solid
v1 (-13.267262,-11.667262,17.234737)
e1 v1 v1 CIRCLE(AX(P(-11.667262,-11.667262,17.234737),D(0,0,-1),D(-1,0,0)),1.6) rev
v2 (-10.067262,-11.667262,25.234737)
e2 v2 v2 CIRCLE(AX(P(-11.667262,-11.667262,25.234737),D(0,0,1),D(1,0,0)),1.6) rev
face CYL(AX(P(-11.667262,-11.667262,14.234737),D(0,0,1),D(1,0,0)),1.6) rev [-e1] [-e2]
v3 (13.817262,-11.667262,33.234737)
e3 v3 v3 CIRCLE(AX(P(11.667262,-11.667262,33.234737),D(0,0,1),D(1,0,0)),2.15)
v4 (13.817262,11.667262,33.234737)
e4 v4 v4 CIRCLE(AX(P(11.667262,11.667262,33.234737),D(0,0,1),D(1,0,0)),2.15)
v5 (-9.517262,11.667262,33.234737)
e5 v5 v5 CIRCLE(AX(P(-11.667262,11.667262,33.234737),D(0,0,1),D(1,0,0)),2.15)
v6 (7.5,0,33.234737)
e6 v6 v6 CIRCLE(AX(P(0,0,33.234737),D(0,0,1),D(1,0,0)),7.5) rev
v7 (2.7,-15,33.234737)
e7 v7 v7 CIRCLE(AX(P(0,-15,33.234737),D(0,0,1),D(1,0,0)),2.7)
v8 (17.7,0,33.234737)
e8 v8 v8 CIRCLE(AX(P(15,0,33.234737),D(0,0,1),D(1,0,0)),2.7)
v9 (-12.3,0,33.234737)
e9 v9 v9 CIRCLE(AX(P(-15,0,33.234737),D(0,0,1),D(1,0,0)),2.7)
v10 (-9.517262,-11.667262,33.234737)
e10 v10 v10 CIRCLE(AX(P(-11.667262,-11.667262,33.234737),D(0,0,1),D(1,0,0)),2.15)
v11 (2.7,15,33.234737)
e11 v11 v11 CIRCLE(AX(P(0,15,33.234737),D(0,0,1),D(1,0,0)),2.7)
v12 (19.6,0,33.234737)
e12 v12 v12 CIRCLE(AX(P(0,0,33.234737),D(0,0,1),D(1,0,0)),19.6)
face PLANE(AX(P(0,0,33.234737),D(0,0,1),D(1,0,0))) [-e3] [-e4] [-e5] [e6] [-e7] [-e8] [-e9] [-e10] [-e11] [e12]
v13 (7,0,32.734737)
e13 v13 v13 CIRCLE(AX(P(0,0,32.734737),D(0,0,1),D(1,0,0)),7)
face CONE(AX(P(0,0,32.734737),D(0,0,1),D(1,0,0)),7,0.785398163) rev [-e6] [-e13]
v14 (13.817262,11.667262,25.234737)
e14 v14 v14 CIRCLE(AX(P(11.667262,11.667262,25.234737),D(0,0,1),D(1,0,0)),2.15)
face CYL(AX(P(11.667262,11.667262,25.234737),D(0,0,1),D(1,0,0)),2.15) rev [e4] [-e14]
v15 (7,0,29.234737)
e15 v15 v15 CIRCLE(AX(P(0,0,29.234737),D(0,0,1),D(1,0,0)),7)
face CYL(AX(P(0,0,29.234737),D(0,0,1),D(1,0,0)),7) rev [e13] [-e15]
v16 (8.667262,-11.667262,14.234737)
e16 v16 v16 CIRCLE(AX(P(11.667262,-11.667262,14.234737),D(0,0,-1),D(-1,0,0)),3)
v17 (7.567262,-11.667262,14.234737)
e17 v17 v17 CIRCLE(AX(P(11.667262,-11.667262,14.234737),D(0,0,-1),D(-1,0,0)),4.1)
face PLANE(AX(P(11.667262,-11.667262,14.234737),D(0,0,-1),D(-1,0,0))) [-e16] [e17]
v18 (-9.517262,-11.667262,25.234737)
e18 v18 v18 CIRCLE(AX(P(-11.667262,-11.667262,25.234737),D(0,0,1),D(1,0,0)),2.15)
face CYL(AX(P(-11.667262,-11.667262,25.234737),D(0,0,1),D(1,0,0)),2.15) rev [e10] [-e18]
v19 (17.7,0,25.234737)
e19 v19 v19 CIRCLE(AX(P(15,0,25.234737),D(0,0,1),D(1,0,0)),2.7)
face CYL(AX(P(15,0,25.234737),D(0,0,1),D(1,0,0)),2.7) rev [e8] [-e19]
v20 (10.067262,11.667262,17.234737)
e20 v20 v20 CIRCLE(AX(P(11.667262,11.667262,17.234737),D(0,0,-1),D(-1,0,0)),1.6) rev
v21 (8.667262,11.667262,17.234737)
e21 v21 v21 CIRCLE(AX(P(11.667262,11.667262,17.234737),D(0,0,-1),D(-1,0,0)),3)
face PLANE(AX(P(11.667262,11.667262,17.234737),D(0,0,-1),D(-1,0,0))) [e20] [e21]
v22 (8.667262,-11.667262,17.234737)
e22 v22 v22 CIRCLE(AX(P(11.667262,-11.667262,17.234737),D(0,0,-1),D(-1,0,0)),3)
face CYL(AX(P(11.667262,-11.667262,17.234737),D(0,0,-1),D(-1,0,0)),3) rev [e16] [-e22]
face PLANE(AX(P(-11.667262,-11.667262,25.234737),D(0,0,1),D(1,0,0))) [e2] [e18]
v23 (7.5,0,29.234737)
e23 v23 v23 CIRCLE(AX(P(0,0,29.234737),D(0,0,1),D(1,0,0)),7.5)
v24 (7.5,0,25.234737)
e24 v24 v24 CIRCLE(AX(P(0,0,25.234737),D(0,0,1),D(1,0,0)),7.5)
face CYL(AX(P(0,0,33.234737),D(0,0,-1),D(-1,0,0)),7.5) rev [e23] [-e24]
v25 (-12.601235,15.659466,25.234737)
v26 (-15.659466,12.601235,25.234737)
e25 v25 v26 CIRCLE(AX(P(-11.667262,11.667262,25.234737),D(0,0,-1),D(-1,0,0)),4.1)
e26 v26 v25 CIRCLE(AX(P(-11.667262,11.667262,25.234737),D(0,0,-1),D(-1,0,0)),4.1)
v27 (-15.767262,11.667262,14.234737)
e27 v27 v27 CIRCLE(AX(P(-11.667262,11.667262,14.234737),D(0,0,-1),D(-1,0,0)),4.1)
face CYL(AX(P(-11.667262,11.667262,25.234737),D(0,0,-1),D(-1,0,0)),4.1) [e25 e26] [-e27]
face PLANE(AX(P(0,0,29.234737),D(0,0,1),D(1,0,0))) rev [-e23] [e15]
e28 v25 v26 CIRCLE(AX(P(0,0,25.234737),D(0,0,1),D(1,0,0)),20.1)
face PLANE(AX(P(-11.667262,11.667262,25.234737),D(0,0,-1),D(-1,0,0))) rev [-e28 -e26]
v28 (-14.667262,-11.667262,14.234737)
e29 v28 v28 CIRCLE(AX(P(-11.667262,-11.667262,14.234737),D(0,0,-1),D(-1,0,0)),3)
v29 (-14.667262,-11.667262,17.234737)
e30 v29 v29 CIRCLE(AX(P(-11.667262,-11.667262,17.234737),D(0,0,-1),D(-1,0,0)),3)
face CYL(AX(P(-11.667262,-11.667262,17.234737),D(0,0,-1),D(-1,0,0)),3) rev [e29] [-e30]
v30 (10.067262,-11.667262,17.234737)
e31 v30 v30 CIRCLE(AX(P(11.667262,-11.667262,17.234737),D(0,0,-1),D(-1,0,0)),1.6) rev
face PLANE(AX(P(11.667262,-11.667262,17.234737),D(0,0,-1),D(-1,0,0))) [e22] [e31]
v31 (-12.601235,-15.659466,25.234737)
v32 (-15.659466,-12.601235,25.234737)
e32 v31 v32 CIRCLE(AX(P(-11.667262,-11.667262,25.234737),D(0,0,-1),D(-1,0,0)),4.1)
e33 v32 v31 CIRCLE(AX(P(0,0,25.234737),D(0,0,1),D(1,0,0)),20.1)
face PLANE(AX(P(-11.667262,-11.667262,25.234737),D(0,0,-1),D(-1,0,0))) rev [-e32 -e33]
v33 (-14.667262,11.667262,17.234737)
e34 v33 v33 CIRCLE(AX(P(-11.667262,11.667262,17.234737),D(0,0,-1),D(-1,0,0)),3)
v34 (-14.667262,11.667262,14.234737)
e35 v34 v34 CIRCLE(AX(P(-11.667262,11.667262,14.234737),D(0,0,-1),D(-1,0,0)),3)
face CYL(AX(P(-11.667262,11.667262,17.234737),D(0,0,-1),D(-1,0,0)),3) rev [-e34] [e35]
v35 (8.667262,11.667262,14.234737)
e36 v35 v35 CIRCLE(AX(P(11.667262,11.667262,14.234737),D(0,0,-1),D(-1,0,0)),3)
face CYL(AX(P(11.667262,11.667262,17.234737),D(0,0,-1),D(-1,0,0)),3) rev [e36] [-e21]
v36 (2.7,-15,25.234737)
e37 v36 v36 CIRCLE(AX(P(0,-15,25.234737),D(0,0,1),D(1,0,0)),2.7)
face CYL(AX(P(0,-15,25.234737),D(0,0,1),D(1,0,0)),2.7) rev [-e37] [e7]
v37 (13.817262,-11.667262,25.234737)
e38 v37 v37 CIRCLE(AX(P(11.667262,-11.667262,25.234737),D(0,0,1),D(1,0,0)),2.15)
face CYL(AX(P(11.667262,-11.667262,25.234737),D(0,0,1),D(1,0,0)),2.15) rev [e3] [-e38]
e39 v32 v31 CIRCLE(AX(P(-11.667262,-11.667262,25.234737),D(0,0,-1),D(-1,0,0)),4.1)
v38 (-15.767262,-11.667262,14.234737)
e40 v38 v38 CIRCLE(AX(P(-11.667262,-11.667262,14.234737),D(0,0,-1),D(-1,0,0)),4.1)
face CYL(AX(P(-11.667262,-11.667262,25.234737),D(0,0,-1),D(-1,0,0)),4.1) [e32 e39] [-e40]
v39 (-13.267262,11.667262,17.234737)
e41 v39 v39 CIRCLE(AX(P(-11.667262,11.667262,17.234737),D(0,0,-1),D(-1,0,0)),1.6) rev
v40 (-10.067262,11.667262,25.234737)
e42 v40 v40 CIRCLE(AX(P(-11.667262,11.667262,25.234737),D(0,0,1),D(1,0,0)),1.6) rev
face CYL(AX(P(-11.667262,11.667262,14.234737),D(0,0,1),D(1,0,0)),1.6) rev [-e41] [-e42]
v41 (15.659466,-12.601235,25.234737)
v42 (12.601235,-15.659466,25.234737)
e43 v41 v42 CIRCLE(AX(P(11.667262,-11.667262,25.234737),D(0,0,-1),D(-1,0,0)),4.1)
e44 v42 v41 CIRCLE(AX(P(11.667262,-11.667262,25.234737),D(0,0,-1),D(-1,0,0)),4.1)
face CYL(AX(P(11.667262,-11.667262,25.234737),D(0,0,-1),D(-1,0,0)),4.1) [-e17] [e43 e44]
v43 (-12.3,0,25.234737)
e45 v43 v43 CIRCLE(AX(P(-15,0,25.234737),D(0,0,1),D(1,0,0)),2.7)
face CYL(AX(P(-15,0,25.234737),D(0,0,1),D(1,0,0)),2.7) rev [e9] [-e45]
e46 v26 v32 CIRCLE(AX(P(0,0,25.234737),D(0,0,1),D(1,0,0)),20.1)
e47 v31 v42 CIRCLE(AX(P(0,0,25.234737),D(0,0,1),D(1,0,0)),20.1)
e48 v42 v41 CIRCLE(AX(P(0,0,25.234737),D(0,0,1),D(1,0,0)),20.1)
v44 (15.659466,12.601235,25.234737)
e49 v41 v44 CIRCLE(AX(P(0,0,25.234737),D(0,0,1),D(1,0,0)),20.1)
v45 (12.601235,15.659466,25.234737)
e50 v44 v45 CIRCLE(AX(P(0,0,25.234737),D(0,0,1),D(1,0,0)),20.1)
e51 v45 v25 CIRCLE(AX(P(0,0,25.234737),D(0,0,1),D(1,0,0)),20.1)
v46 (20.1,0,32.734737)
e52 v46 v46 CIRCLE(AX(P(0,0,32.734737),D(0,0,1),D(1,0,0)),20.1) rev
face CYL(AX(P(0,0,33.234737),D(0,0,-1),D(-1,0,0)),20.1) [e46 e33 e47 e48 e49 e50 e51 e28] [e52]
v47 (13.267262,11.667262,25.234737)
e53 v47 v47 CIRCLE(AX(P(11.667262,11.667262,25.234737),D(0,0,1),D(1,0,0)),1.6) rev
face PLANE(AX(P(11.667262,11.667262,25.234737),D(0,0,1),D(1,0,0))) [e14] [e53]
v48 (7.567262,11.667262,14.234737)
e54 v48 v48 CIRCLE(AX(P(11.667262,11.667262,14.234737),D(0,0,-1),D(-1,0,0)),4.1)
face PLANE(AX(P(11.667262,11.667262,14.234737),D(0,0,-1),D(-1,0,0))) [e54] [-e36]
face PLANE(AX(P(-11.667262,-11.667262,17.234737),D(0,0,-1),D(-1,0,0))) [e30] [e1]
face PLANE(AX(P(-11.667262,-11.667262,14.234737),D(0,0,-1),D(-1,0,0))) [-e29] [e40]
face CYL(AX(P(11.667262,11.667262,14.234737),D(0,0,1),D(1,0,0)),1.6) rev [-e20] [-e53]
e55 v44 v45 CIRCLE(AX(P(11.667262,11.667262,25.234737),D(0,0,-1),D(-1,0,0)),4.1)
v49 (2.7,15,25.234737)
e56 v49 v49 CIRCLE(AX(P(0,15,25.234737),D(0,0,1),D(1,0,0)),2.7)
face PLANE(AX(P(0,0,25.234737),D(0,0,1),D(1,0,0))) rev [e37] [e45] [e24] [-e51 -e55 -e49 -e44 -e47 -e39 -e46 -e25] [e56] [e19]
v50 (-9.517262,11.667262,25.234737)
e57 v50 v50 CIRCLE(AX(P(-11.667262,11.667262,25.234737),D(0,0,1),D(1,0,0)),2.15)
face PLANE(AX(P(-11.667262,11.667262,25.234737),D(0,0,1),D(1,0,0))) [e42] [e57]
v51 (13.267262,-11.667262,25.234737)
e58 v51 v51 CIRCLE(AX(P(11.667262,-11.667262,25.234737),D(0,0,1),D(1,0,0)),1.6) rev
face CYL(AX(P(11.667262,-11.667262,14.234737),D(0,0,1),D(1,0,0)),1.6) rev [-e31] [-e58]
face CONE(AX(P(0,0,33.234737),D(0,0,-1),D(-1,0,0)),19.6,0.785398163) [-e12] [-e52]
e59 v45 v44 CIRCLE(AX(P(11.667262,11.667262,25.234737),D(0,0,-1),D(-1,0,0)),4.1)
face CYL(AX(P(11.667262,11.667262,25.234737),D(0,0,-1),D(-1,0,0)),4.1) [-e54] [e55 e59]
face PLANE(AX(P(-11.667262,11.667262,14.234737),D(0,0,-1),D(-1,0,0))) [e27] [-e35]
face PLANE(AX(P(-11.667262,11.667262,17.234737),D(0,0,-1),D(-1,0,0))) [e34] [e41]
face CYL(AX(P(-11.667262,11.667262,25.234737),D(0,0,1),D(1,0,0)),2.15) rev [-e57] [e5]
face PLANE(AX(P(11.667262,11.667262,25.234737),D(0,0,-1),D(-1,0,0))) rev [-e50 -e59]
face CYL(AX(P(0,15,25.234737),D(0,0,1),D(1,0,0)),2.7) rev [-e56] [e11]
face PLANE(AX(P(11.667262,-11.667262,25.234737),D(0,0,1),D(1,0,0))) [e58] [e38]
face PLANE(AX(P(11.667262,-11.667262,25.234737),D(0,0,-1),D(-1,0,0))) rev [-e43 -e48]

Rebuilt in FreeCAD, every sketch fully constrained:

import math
import FreeCAD as App
import Part
import Sketcher
from FreeCAD import Vector
Q = App.Units.Quantity


def edges_at(feature, points):
    """Names of the edges that pass closest to the given points."""
    edges = feature.Shape.Edges
    near = lambda p: min(range(len(edges)), key=lambda i: edges[i].distToShape(Part.Vertex(*p))[0])
    return sorted({f"Edge{near(p) + 1}" for p in points})

doc = App.newDocument("Part")
body = doc.addObject("PartDesign::Body", "Body")

# Sketch on XY plane
sketch1 = body.newObject("Sketcher::SketchObject", "Sketch")
sketch1.AttachmentSupport = (doc.getObject("XY_Plane"), [""])
sketch1.MapMode = "FlatFace"
sketch1.AttachmentOffset = App.Placement(Vector(0, 0, 25.234737), App.Rotation())
sketch1.addGeometry(Part.Circle(Vector(11.7, 11.7, 0), Vector(0, 0, 1), 4), False)
sketch1.addConstraint(Sketcher.Constraint("Diameter", 0, Q("8 mm")))
sketch1.addConstraint(Sketcher.Constraint("DistanceX", -1, 1, 0, 3, Q("11.667262 mm")))
sketch1.addConstraint(Sketcher.Constraint("DistanceY", -1, 1, 0, 3, Q("11.667262 mm")))
pad1 = body.newObject("PartDesign::Pad", "Pad")
pad1.Profile = sketch1
pad1.Length = 11
pad1.Reversed = True
body2 = doc.addObject("PartDesign::Body", "Body001")

# Sketch on XY plane
sketch2 = body2.newObject("Sketcher::SketchObject", "Sketch001")
sketch2.AttachmentSupport = (doc.getObject("XY_Plane001"), [""])
sketch2.MapMode = "FlatFace"
sketch2.AttachmentOffset = App.Placement(Vector(0, 0, 25.234737), App.Rotation())
sketch2.addGeometry(Part.Circle(Vector(-11.7, 11.7, 0), Vector(0, 0, 1), 4), False)
sketch2.addConstraint(Sketcher.Constraint("Diameter", 0, Q("8 mm")))
sketch2.addConstraint(Sketcher.Constraint("DistanceX", 0, 3, -1, 1, Q("11.667262 mm")))
sketch2.addConstraint(Sketcher.Constraint("DistanceY", -1, 1, 0, 3, Q("11.667262 mm")))
pad2 = body2.newObject("PartDesign::Pad", "Pad001")
pad2.Profile = sketch2
pad2.Length = 11
pad2.Reversed = True
body3 = doc.addObject("PartDesign::Body", "Body002")

# Sketch on XY plane
sketch3 = body3.newObject("Sketcher::SketchObject", "Sketch002")
sketch3.AttachmentSupport = (doc.getObject("XY_Plane002"), [""])
sketch3.MapMode = "FlatFace"
sketch3.AttachmentOffset = App.Placement(Vector(0, 0, 25.234737), App.Rotation())
sketch3.addGeometry(Part.Circle(Vector(-11.7, -11.7, 0), Vector(0, 0, 1), 4), False)
sketch3.addConstraint(Sketcher.Constraint("Diameter", 0, Q("8 mm")))
sketch3.addConstraint(Sketcher.Constraint("DistanceX", 0, 3, -1, 1, Q("11.667262 mm")))
sketch3.addConstraint(Sketcher.Constraint("DistanceY", 0, 3, -1, 1, Q("11.667262 mm")))
pad3 = body3.newObject("PartDesign::Pad", "Pad002")
pad3.Profile = sketch3
pad3.Length = 11
pad3.Reversed = True
body4 = doc.addObject("PartDesign::Body", "Body003")

# Sketch on XY plane
sketch4 = body4.newObject("Sketcher::SketchObject", "Sketch003")
sketch4.AttachmentSupport = (doc.getObject("XY_Plane003"), [""])
sketch4.MapMode = "FlatFace"
sketch4.AttachmentOffset = App.Placement(Vector(0, 0, 25.234737), App.Rotation())
sketch4.addGeometry(Part.Circle(Vector(11.7, -11.7, 0), Vector(0, 0, 1), 4), False)
sketch4.addConstraint(Sketcher.Constraint("Diameter", 0, Q("8 mm")))
sketch4.addConstraint(Sketcher.Constraint("DistanceX", -1, 1, 0, 3, Q("11.667262 mm")))
sketch4.addConstraint(Sketcher.Constraint("DistanceY", 0, 3, -1, 1, Q("11.667262 mm")))
pad4 = body4.newObject("PartDesign::Pad", "Pad003")
pad4.Profile = sketch4
pad4.Length = 11
pad4.Reversed = True
body.AllowCompound = True
doc.recompute()

boolean = body.newObject("PartDesign::Boolean", "Boolean")
boolean.Type = "Fuse"
boolean.addObjects([body2])
doc.recompute()

boolean2 = body.newObject("PartDesign::Boolean", "Boolean001")
boolean2.Type = "Fuse"
boolean2.addObjects([body3])
doc.recompute()

boolean3 = body.newObject("PartDesign::Boolean", "Boolean002")
boolean3.Type = "Fuse"
boolean3.addObjects([body4])

# Sketch on XY plane
sketch5 = body.newObject("Sketcher::SketchObject", "Sketch004")
sketch5.AttachmentSupport = (doc.getObject("XY_Plane"), [""])
sketch5.MapMode = "FlatFace"
sketch5.AttachmentOffset = App.Placement(Vector(0, 0, 25.234737), App.Rotation())
sketch5.addGeometry(Part.ArcOfCircle(Part.Circle(Vector(0, 0, 0), Vector(0, 0, 1), 20), math.radians(-32), math.radians(58)), False)
sketch5.addGeometry(Part.ArcOfCircle(Part.Circle(Vector(0, 0, 0), Vector(0, 0, 1), 20), math.radians(58), math.radians(148)), False)
sketch5.addGeometry(Part.ArcOfCircle(Part.Circle(Vector(0, 0, 0), Vector(0, 0, 1), 20), math.radians(148), math.radians(238)), False)
sketch5.addGeometry(Part.ArcOfCircle(Part.Circle(Vector(0, 0, 0), Vector(0, 0, 1), 20), math.radians(-122), math.radians(-32)), False)
sketch5.addGeometry(Part.Circle(Vector(0, 0, 0), Vector(0, 0, 1), 8), False)
sketch5.addConstraint(Sketcher.Constraint("Tangent", 0, 2, 1, 1))
sketch5.addConstraint(Sketcher.Constraint("Tangent", 1, 2, 2, 1))
sketch5.addConstraint(Sketcher.Constraint("Tangent", 2, 2, 3, 1))
sketch5.addConstraint(Sketcher.Constraint("Tangent", 3, 2, 0, 1))
sketch5.addConstraint(Sketcher.Constraint("Coincident", 0, 3, -1, 1))
sketch5.addConstraint(Sketcher.Constraint("Coincident", 4, 3, -1, 1))
sketch5.addConstraint(Sketcher.Constraint("Equal", 0, 1))
sketch5.addConstraint(Sketcher.Constraint("Diameter", 4, Q("15 mm")))
sketch5.addConstraint(Sketcher.Constraint("Radius", 0, Q("20.1 mm")))
sketch5.addConstraint(Sketcher.Constraint("DistanceX", -1, 1, 0, 2, Q("10.73573 mm")))
sketch5.addConstraint(Sketcher.Constraint("DistanceY", -1, 1, 1, 2, Q("10.73573 mm")))
sketch5.addConstraint(Sketcher.Constraint("DistanceX", 2, 2, -1, 1, Q("10.73573 mm")))
sketch5.addConstraint(Sketcher.Constraint("DistanceY", 3, 2, -1, 1, Q("10.73573 mm")))
pad5 = body.newObject("PartDesign::Pad", "Pad004")
pad5.Profile = sketch5
pad5.Length = 8

# Sketch on XY plane
sketch6 = body.newObject("Sketcher::SketchObject", "Sketch005")
sketch6.AttachmentSupport = (doc.getObject("XY_Plane"), [""])
sketch6.MapMode = "FlatFace"
sketch6.AttachmentOffset = App.Placement(Vector(0, 0, 33.234737), App.Rotation())
sketch6.addGeometry(Part.Circle(Vector(11.7, 11.7, 0), Vector(0, 0, 1), 1.6), False)
sketch6.addGeometry(Part.Circle(Vector(11.7, -11.7, 0), Vector(0, 0, 1), 1.6), False)
sketch6.addGeometry(Part.Circle(Vector(-11.7, -11.7, 0), Vector(0, 0, 1), 1.6), False)
sketch6.addGeometry(Part.Circle(Vector(-11.7, 11.7, 0), Vector(0, 0, 1), 1.6), False)
sketch6.addConstraint(Sketcher.Constraint("Equal", 0, 1))
sketch6.addConstraint(Sketcher.Constraint("Equal", 1, 2))
sketch6.addConstraint(Sketcher.Constraint("Equal", 2, 3))
sketch6.addConstraint(Sketcher.Constraint("Symmetric", 0, 3, 2, 3, -1, 1))
sketch6.addConstraint(Sketcher.Constraint("Symmetric", 1, 3, 3, 3, -1, 1))
sketch6.addConstraint(Sketcher.Constraint("Symmetric", 1, 3, 2, 3, -2))
sketch6.addConstraint(Sketcher.Constraint("Diameter", 0, Q("3.2 mm")))
sketch6.addConstraint(Sketcher.Constraint("DistanceX", -1, 1, 0, 3, Q("11.667262 mm")))
sketch6.addConstraint(Sketcher.Constraint("DistanceY", -1, 1, 0, 3, Q("11.667262 mm")))
pocket1 = body.newObject("PartDesign::Pocket", "Pocket")
pocket1.Profile = sketch6
pocket1.Type = "ThroughAll"

# Sketch on XY plane
sketch7 = body.newObject("Sketcher::SketchObject", "Sketch006")
sketch7.AttachmentSupport = (doc.getObject("XY_Plane"), [""])
sketch7.MapMode = "FlatFace"
sketch7.AttachmentOffset = App.Placement(Vector(0, 0, 14.234737), App.Rotation())
sketch7.addGeometry(Part.Circle(Vector(11.7, 11.7, 0), Vector(0, 0, 1), 3), False)
sketch7.addGeometry(Part.Circle(Vector(11.7, -11.7, 0), Vector(0, 0, 1), 3), False)
sketch7.addGeometry(Part.Circle(Vector(-11.7, -11.7, 0), Vector(0, 0, 1), 3), False)
sketch7.addGeometry(Part.Circle(Vector(-11.7, 11.7, 0), Vector(0, 0, 1), 3), False)
sketch7.addConstraint(Sketcher.Constraint("Equal", 0, 1))
sketch7.addConstraint(Sketcher.Constraint("Equal", 1, 2))
sketch7.addConstraint(Sketcher.Constraint("Equal", 2, 3))
sketch7.addConstraint(Sketcher.Constraint("Symmetric", 0, 3, 2, 3, -1, 1))
sketch7.addConstraint(Sketcher.Constraint("Symmetric", 1, 3, 3, 3, -1, 1))
sketch7.addConstraint(Sketcher.Constraint("Symmetric", 1, 3, 2, 3, -2))
sketch7.addConstraint(Sketcher.Constraint("Diameter", 0, Q("6 mm")))
sketch7.addConstraint(Sketcher.Constraint("DistanceX", -1, 1, 0, 3, Q("11.667262 mm")))
sketch7.addConstraint(Sketcher.Constraint("DistanceY", -1, 1, 0, 3, Q("11.667262 mm")))
pocket2 = body.newObject("PartDesign::Pocket", "Pocket001")
pocket2.Profile = sketch7
pocket2.Length = 3
pocket2.Reversed = True

# Sketch on XY plane
sketch8 = body.newObject("Sketcher::SketchObject", "Sketch007")
sketch8.AttachmentSupport = (doc.getObject("XY_Plane"), [""])
sketch8.MapMode = "FlatFace"
sketch8.AttachmentOffset = App.Placement(Vector(0, 0, 25.234737), App.Rotation())
sketch8.addGeometry(Part.Circle(Vector(-11.7, 11.7, 0), Vector(0, 0, 1), 4.1), False)
sketch8.addGeometry(Part.Circle(Vector(-11.7, 11.7, 0), Vector(0, 0, 1), 4), False)
sketch8.addGeometry(Part.Circle(Vector(-11.7, -11.7, 0), Vector(0, 0, 1), 4.1), False)
sketch8.addGeometry(Part.Circle(Vector(-11.7, -11.7, 0), Vector(0, 0, 1), 4), False)
sketch8.addGeometry(Part.Circle(Vector(11.7, -11.7, 0), Vector(0, 0, 1), 4.1), False)
sketch8.addGeometry(Part.Circle(Vector(11.7, -11.7, 0), Vector(0, 0, 1), 4), False)
sketch8.addGeometry(Part.Circle(Vector(11.7, 11.7, 0), Vector(0, 0, 1), 4.1), False)
sketch8.addGeometry(Part.Circle(Vector(11.7, 11.7, 0), Vector(0, 0, 1), 4), False)
sketch8.addConstraint(Sketcher.Constraint("Coincident", 1, 3, 0, 3))
sketch8.addConstraint(Sketcher.Constraint("Coincident", 3, 3, 2, 3))
sketch8.addConstraint(Sketcher.Constraint("Coincident", 5, 3, 4, 3))
sketch8.addConstraint(Sketcher.Constraint("Coincident", 7, 3, 6, 3))
sketch8.addConstraint(Sketcher.Constraint("Equal", 0, 2))
sketch8.addConstraint(Sketcher.Constraint("Equal", 1, 3))
sketch8.addConstraint(Sketcher.Constraint("Equal", 2, 4))
sketch8.addConstraint(Sketcher.Constraint("Equal", 3, 5))
sketch8.addConstraint(Sketcher.Constraint("Equal", 4, 6))
sketch8.addConstraint(Sketcher.Constraint("Equal", 5, 7))
sketch8.addConstraint(Sketcher.Constraint("Symmetric", 0, 3, 4, 3, -1, 1))
sketch8.addConstraint(Sketcher.Constraint("Symmetric", 2, 3, 6, 3, -1, 1))
sketch8.addConstraint(Sketcher.Constraint("Symmetric", 2, 3, 4, 3, -2))
sketch8.addConstraint(Sketcher.Constraint("Diameter", 1, Q("8 mm")))
sketch8.addConstraint(Sketcher.Constraint("Diameter", 0, Q("8.2 mm")))
sketch8.addConstraint(Sketcher.Constraint("DistanceX", 0, 3, -1, 1, Q("11.667262 mm")))
sketch8.addConstraint(Sketcher.Constraint("DistanceY", -1, 1, 0, 3, Q("11.667262 mm")))
pad6 = body.newObject("PartDesign::Pad", "Pad005")
pad6.Profile = sketch8
pad6.Length = 11
pad6.Reversed = True

# Sketch on XY plane
sketch9 = body.newObject("Sketcher::SketchObject", "Sketch008")
sketch9.AttachmentSupport = (doc.getObject("XY_Plane"), [""])
sketch9.MapMode = "FlatFace"
sketch9.AttachmentOffset = App.Placement(Vector(0, 0, 33.234737), App.Rotation())
sketch9.addGeometry(Part.Circle(Vector(0, 15, 0), Vector(0, 0, 1), 2.7), False)
sketch9.addGeometry(Part.Circle(Vector(15, 0, 0), Vector(0, 0, 1), 2.7), False)
sketch9.addGeometry(Part.Circle(Vector(0, -15, 0), Vector(0, 0, 1), 2.7), False)
sketch9.addGeometry(Part.Circle(Vector(-15, 0, 0), Vector(0, 0, 1), 2.7), False)
sketch9.addGeometry(Part.Circle(Vector(-11.7, 11.7, 0), Vector(0, 0, 1), 2.1), False)
sketch9.addGeometry(Part.Circle(Vector(11.7, 11.7, 0), Vector(0, 0, 1), 2.1), False)
sketch9.addGeometry(Part.Circle(Vector(11.7, -11.7, 0), Vector(0, 0, 1), 2.1), False)
sketch9.addGeometry(Part.Circle(Vector(-11.7, -11.7, 0), Vector(0, 0, 1), 2.1), False)
sketch9.addConstraint(Sketcher.Constraint("Equal", 0, 1))
sketch9.addConstraint(Sketcher.Constraint("Equal", 1, 2))
sketch9.addConstraint(Sketcher.Constraint("Equal", 2, 3))
sketch9.addConstraint(Sketcher.Constraint("Equal", 4, 5))
sketch9.addConstraint(Sketcher.Constraint("Equal", 5, 6))
sketch9.addConstraint(Sketcher.Constraint("Equal", 6, 7))
sketch9.addConstraint(Sketcher.Constraint("Symmetric", 0, 3, 2, 3, -1, 1))
sketch9.addConstraint(Sketcher.Constraint("Symmetric", 1, 3, 3, 3, -1, 1))
sketch9.addConstraint(Sketcher.Constraint("Symmetric", 4, 3, 6, 3, -1, 1))
sketch9.addConstraint(Sketcher.Constraint("Symmetric", 5, 3, 7, 3, -1, 1))
sketch9.addConstraint(Sketcher.Constraint("Symmetric", 4, 3, 5, 3, -2))
sketch9.addConstraint(Sketcher.Constraint("PointOnObject", 0, 3, -2))
sketch9.addConstraint(Sketcher.Constraint("PointOnObject", 1, 3, -1))
sketch9.addConstraint(Sketcher.Constraint("Diameter", 0, Q("5.4 mm")))
sketch9.addConstraint(Sketcher.Constraint("Diameter", 4, Q("4.3 mm")))
sketch9.addConstraint(Sketcher.Constraint("DistanceY", -1, 1, 0, 3, Q("15 mm")))
sketch9.addConstraint(Sketcher.Constraint("DistanceX", -1, 1, 1, 3, Q("15 mm")))
sketch9.addConstraint(Sketcher.Constraint("DistanceX", 4, 3, -1, 1, Q("11.667262 mm")))
sketch9.addConstraint(Sketcher.Constraint("DistanceY", -1, 1, 4, 3, Q("11.667262 mm")))
pocket3 = body.newObject("PartDesign::Pocket", "Pocket002")
pocket3.Profile = sketch9
pocket3.Length = 8

# Sketch on XY plane
sketch10 = body.newObject("Sketcher::SketchObject", "Sketch009")
sketch10.AttachmentSupport = (doc.getObject("XY_Plane"), [""])
sketch10.MapMode = "FlatFace"
sketch10.AttachmentOffset = App.Placement(Vector(0, 0, 29.234737), App.Rotation())
sketch10.addGeometry(Part.Circle(Vector(0, 0, 0), Vector(0, 0, 1), 8), False)
sketch10.addGeometry(Part.Circle(Vector(0, 0, 0), Vector(0, 0, 1), 7), False)
sketch10.addConstraint(Sketcher.Constraint("Coincident", 0, 3, -1, 1))
sketch10.addConstraint(Sketcher.Constraint("Coincident", 1, 3, -1, 1))
sketch10.addConstraint(Sketcher.Constraint("Diameter", 0, Q("15 mm")))
sketch10.addConstraint(Sketcher.Constraint("Diameter", 1, Q("14 mm")))
pad7 = body.newObject("PartDesign::Pad", "Pad006")
pad7.Profile = sketch10
pad7.Length = 4
doc.recompute()

chamfer = body.newObject("PartDesign::Chamfer", "Chamfer")
chamfer.Base = (pad7, edges_at(pad7, [(-19.607, -4.424, 33.235), (-7, 0, 33.235)]))
chamfer.Size = 0.5

doc.recompute()
